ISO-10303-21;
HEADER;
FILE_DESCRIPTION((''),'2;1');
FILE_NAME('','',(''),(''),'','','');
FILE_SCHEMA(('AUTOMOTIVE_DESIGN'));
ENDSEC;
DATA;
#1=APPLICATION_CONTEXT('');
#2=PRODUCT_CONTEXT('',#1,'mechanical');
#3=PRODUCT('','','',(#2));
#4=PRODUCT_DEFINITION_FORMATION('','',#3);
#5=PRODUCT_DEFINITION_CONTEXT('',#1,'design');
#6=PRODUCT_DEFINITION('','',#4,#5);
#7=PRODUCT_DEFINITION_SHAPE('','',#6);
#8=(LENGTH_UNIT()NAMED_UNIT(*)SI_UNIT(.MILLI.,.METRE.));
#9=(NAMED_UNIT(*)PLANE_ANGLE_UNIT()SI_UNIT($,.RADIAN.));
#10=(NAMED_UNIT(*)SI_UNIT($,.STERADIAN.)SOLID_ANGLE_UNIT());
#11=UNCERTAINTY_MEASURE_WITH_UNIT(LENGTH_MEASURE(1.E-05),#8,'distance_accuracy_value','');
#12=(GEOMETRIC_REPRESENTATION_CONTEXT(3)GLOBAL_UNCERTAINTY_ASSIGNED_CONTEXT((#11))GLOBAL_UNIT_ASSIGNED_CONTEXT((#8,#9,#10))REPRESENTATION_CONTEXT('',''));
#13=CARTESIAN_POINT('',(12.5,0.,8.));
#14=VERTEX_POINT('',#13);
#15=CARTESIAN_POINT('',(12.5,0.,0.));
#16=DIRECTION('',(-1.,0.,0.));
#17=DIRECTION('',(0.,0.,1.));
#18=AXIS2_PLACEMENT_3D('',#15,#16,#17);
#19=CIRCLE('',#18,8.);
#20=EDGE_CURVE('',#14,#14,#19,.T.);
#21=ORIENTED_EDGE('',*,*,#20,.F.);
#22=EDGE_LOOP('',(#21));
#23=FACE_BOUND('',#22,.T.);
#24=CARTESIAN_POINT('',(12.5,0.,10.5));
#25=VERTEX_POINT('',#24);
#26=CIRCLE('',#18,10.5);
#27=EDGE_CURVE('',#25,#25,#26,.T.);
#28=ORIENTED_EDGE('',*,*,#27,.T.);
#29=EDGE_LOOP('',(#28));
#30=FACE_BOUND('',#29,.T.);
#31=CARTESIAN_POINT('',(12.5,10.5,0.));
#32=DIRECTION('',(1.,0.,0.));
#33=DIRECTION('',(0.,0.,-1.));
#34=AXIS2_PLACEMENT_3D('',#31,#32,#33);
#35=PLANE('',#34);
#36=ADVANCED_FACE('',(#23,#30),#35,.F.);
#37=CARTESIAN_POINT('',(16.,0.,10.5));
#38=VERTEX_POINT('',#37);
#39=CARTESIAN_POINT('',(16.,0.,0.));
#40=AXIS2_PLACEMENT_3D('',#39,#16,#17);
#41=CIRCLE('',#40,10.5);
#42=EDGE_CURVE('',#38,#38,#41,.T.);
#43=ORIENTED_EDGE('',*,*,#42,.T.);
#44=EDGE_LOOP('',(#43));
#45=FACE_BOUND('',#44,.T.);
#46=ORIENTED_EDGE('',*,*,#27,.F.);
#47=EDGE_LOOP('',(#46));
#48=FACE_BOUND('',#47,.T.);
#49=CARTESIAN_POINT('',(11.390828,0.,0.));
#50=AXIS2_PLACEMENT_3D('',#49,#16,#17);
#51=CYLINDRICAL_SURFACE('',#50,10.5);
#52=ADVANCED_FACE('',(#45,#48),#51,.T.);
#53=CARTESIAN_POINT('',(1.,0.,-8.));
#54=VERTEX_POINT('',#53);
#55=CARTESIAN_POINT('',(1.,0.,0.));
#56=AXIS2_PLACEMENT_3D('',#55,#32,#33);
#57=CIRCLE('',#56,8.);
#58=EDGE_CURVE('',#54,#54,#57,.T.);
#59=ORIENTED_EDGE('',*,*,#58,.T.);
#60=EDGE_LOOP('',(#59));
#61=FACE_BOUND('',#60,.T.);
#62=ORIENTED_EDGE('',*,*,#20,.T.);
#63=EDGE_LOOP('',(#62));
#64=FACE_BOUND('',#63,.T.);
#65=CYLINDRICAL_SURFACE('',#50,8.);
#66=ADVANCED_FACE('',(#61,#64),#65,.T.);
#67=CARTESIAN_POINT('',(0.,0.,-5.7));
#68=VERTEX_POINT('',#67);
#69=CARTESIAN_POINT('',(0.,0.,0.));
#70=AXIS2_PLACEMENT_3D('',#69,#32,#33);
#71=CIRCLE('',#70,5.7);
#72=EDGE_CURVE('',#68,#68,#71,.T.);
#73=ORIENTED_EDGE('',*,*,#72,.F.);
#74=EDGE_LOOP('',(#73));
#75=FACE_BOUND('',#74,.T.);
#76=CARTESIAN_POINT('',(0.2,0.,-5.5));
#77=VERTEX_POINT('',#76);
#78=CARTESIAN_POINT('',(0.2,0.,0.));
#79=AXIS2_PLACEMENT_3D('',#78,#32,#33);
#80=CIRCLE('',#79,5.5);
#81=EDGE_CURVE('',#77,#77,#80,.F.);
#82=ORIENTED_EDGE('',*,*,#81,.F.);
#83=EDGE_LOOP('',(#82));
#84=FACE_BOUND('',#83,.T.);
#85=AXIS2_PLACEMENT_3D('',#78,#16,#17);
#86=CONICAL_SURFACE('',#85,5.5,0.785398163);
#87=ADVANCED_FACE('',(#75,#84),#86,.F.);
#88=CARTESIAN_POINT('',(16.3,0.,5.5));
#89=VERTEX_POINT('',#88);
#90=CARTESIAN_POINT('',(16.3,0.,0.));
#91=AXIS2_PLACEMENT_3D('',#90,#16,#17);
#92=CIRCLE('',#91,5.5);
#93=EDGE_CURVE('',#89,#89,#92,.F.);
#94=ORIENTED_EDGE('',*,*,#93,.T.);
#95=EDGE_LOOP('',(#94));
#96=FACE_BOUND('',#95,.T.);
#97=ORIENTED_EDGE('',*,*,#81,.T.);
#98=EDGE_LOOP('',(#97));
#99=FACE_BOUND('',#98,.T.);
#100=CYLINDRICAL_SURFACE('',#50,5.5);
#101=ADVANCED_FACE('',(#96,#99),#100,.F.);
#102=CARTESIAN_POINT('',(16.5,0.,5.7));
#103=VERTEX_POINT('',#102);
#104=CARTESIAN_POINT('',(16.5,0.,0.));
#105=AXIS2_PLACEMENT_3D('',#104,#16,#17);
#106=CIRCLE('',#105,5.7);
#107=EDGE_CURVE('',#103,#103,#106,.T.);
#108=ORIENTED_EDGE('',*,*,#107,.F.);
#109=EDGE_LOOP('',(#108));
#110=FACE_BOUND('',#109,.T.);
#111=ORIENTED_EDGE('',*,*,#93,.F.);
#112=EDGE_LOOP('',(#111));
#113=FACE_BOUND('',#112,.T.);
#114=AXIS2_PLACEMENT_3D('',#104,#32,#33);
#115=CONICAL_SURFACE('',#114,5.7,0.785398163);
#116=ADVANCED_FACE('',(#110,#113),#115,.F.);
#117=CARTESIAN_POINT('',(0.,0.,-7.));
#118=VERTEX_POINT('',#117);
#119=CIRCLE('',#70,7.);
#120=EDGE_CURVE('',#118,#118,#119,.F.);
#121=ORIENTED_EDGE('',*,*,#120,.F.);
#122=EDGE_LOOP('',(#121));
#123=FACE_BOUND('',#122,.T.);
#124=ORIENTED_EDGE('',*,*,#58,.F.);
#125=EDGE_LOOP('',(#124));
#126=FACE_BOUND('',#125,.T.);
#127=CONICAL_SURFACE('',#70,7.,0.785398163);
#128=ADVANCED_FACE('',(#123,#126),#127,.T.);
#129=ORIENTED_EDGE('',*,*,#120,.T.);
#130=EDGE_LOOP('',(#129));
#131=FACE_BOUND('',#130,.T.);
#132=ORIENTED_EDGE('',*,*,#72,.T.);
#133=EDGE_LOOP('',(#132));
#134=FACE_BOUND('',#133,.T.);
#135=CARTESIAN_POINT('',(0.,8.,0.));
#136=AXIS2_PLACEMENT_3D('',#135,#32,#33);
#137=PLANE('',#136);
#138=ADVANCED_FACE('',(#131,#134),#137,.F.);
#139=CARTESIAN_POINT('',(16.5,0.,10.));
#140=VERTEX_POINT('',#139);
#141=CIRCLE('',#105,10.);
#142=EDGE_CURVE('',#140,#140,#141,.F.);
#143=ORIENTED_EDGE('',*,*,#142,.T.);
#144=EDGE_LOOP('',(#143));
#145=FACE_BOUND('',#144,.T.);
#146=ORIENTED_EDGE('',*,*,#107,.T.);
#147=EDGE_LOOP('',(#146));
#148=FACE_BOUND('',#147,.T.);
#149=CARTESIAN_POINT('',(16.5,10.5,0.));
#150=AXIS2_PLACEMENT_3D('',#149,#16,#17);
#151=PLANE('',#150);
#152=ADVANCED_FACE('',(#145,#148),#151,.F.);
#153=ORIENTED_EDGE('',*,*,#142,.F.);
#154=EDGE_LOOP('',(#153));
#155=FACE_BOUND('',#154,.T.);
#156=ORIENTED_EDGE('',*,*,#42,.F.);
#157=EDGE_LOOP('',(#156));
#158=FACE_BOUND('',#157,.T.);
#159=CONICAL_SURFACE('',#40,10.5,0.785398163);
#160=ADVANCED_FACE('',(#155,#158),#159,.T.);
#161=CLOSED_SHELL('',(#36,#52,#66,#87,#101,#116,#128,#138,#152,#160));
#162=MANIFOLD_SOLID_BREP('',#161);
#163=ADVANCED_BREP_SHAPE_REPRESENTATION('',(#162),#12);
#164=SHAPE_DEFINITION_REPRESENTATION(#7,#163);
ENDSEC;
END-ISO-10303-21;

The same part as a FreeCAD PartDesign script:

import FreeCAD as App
import Part
import Sketcher


def edges_at(feature, points):
    """Names of the edges that pass closest to the given points."""
    edges = feature.Shape.Edges
    near = lambda p: min(range(len(edges)), key=lambda i: edges[i].distToShape(Part.Vertex(*p))[0])
    return sorted({f"Edge{near(p) + 1}" for p in points})


def add_polygon(sketch, points):
    """Adds a closed chain of lines whose ends are joined by coincident constraints."""
    first, n = sketch.GeometryCount, len(points)
    for a, b in zip(points, points[1:] + points[:1]):
        sketch.addGeometry(Part.LineSegment(App.Vector(*a, 0), App.Vector(*b, 0)), False)
    for i in range(n):
        sketch.addConstraint(Sketcher.Constraint("Coincident", first + i, 2, first + (i + 1) % n, 1))

doc = App.newDocument("Part")
body = doc.addObject("PartDesign::Body", "Body")

# Sketch on XY plane
sketch1 = doc.addObject("Sketcher::SketchObject", "Sketch")
body.addObject(sketch1)
sketch1.AttachmentSupport = (doc.XY_Plane, [""])
sketch1.MapMode = "FlatFace"
add_polygon(sketch1, [(16.5, 10.5), (12.5, 10.5), (12.5, 8), (0, 8), (0, 5.5), (16.5, 5.5)])  # lines 0-5
sketch1.addConstraint(Sketcher.Constraint("Horizontal", 0))
sketch1.addConstraint(Sketcher.Constraint("Vertical", 1))
sketch1.addConstraint(Sketcher.Constraint("Horizontal", 2))
sketch1.addConstraint(Sketcher.Constraint("Vertical", 3))
sketch1.addConstraint(Sketcher.Constraint("Horizontal", 4))
sketch1.addConstraint(Sketcher.Constraint("Vertical", 5))
sketch1.addConstraint(Sketcher.Constraint("PointOnObject", 2, 2, -2))
sketch1.addConstraint(Sketcher.Constraint("Equal", 1, 3))
sketch1.addConstraint(Sketcher.Constraint("DistanceX", 0, 2, 0, 1, 4.0))
sketch1.addConstraint(Sketcher.Constraint("DistanceY", 5, 1, 5, 2, 5.0))
sketch1.addConstraint(Sketcher.Constraint("DistanceX", 2, 2, 2, 1, 12.5))
sketch1.addConstraint(Sketcher.Constraint("DistanceY", -1, 1, 1, 2, 8.0))
revolution = doc.addObject("PartDesign::Revolution", "Revolution")
body.addObject(revolution)
revolution.Profile = sketch1
revolution.ReferenceAxis = (sketch1, ["H_Axis"])
revolution.Angle = 360
doc.recompute()

chamfer = doc.addObject("PartDesign::Chamfer", "Chamfer")
body.addObject(chamfer)
chamfer.Base = (revolution, edges_at(revolution, [(16.5, 0, -10.5)]))
chamfer.Size = 0.5
doc.recompute()

chamfer2 = doc.addObject("PartDesign::Chamfer", "Chamfer001")
body.addObject(chamfer2)
chamfer2.Base = (chamfer, edges_at(chamfer, [(0, 0, -8)]))
chamfer2.Size = 1
doc.recompute()

chamfer3 = doc.addObject("PartDesign::Chamfer", "Chamfer002")
body.addObject(chamfer3)
chamfer3.Base = (chamfer2, edges_at(chamfer2, [(0, 0, -5.5), (16.5, 0, -5.5)]))
chamfer3.Size = 0.2

doc.recompute()
